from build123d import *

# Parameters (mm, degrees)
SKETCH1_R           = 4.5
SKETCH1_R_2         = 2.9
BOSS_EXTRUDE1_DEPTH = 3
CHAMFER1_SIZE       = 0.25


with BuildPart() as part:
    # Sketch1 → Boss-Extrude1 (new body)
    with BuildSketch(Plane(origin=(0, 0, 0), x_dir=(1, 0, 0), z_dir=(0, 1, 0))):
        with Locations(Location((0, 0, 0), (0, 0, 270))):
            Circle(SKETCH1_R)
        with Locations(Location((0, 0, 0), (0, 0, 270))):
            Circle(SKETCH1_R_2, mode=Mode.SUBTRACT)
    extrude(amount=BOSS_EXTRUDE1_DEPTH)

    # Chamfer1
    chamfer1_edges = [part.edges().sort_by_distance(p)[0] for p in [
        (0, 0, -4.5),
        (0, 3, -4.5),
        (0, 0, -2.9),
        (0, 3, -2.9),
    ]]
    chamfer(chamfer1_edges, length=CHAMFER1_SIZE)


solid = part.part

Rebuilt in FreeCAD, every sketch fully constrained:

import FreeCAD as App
import Part
import Sketcher


def edges_at(feature, points):
    """Names of the edges that pass closest to the given points."""
    edges = feature.Shape.Edges
    near = lambda p: min(range(len(edges)), key=lambda i: edges[i].distToShape(Part.Vertex(*p))[0])
    return sorted({f"Edge{near(p) + 1}" for p in points})

doc = App.newDocument("Part")
body = doc.addObject("PartDesign::Body", "Body")

# Sketch on XZ plane
sketch1 = body.newObject("Sketcher::SketchObject", "Sketch")
sketch1.AttachmentSupport = (doc.getObject("XZ_Plane"), [""])
sketch1.MapMode = "FlatFace"
sketch1.addGeometry([
    Part.Circle(App.Vector(0, 0, 0), App.Vector(0, 0, 1), 4.5),
    Part.Circle(App.Vector(0, 0, 0), App.Vector(0, 0, 1), 2.9),
], False)
sketch1.addConstraint([
    Sketcher.Constraint("Coincident", 0, 3, -1, 1),
    Sketcher.Constraint("Coincident", 1, 3, -1, 1),
    Sketcher.Constraint("Diameter", 0, 9.0),
    Sketcher.Constraint("Diameter", 1, 5.8),
])
pad1 = body.newObject("PartDesign::Pad", "Pad")
pad1.Profile = sketch1
pad1.Length = 3
pad1.Reversed = True
doc.recompute()

chamfer = body.newObject("PartDesign::Chamfer", "Chamfer")
chamfer.Base = (pad1, edges_at(pad1, [
    (0, 0, -4.5),
    (0, 3, -4.5),
    (0, 0, -2.9),
    (0, 3, -2.9),
]))
chamfer.Size = 0.25

doc.recompute()
